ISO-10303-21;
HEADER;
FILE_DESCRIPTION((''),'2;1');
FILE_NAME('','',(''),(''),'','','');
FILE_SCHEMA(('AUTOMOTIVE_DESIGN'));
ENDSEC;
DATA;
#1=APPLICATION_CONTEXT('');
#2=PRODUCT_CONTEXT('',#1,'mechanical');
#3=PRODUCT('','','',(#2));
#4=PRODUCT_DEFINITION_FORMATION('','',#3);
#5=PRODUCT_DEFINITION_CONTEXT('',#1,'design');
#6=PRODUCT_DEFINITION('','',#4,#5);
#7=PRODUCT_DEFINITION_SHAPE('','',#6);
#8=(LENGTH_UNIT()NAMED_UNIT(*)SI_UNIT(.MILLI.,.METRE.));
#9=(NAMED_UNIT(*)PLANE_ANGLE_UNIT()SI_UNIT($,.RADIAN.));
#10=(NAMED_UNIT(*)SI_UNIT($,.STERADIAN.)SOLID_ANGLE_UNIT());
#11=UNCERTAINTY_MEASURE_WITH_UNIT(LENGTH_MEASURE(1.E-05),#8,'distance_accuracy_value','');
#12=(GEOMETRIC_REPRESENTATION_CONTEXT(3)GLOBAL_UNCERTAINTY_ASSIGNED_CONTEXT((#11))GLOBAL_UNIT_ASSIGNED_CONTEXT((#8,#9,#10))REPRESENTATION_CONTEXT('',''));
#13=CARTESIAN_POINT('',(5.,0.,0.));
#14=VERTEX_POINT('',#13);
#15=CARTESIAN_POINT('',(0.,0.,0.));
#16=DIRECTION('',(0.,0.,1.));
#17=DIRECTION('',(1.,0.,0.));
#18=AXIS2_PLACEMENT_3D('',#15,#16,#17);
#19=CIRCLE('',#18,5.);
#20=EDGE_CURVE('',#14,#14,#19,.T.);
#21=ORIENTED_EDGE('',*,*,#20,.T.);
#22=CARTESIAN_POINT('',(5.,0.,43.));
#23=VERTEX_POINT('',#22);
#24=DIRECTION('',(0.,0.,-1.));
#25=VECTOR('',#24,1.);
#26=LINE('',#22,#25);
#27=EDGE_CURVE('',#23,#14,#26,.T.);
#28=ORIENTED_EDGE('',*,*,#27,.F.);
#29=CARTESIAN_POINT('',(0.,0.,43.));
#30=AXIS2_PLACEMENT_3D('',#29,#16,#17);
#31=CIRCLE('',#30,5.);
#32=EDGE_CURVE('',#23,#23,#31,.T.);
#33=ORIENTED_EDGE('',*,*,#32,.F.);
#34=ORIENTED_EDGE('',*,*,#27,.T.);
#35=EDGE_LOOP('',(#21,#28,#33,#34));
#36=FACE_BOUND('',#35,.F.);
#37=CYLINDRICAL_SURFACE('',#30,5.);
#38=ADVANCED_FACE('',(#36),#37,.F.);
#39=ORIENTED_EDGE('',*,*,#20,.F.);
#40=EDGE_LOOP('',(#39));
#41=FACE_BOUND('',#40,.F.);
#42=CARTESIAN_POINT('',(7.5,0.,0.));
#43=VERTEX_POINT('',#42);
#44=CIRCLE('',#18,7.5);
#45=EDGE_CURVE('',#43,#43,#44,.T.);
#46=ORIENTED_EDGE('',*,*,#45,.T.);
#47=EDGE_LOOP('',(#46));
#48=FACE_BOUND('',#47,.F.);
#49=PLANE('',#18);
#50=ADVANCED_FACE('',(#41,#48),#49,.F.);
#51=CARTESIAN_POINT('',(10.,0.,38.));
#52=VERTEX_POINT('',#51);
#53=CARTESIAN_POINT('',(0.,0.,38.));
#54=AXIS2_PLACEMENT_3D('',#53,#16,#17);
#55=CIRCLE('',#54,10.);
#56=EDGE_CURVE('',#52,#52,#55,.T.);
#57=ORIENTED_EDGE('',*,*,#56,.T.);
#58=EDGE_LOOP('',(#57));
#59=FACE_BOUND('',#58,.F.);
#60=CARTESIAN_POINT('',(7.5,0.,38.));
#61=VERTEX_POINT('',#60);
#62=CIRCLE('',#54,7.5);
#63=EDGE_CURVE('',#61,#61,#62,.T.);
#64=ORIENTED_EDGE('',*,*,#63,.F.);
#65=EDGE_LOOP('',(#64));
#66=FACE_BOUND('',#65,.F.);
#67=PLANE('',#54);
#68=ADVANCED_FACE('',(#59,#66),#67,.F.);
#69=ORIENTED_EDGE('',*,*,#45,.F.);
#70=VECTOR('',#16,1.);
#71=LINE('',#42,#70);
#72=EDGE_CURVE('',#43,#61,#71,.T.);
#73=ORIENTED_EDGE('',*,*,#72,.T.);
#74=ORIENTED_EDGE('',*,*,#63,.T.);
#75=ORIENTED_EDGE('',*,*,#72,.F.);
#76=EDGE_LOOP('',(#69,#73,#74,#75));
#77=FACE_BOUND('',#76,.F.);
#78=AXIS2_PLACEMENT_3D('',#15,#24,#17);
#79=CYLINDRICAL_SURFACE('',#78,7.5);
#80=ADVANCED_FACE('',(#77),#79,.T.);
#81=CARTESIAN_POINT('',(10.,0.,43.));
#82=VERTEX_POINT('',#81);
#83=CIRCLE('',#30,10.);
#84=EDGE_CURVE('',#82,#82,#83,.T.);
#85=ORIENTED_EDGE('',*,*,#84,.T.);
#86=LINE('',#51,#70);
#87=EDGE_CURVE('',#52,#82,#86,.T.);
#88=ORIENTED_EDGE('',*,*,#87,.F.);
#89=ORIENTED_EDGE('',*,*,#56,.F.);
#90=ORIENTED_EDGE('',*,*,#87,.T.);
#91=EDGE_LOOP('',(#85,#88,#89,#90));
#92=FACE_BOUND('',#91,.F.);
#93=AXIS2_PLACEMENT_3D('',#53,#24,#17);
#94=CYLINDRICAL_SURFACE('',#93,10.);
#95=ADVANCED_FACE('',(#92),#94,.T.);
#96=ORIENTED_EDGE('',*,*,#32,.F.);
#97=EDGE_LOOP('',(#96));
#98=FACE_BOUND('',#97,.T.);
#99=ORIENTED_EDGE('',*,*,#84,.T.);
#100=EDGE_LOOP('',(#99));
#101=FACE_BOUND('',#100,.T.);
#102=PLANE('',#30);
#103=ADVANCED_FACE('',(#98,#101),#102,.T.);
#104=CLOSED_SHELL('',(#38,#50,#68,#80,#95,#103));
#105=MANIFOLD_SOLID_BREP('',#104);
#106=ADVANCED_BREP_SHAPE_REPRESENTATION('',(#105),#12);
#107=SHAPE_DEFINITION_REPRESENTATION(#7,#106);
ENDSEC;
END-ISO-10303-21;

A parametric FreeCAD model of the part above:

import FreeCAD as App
import Part
import Sketcher
from FreeCAD import Vector

doc = App.newDocument("Part")
body = doc.addObject("PartDesign::Body", "Body")

sketch1 = doc.addObject("Sketcher::SketchObject", "Sketch")
body.addObject(sketch1)
sketch1.AttachmentSupport = (doc.XY_Plane, [""])
sketch1.MapMode = "FlatFace"
sketch1.addGeometry(Part.Circle(Vector(0, 0, 0), Vector(0, 0, 1), 7.5), False)
sketch1.addConstraint([
    Sketcher.Constraint("Coincident", 0, 3, -1, 1),
    Sketcher.Constraint("Diameter", 0, 15.0),
])
pad1 = doc.addObject("PartDesign::Pad", "Pad")
body.addObject(pad1)
pad1.Profile = sketch1
pad1.Length = 38

sketch2 = doc.addObject("Sketcher::SketchObject", "Sketch001")
body.addObject(sketch2)
sketch2.AttachmentSupport = (doc.XY_Plane, [""])
sketch2.MapMode = "FlatFace"
sketch2.AttachmentOffset = App.Placement(Vector(0, 0, 38), App.Rotation())
sketch2.addGeometry(Part.Circle(Vector(0, 0, 0), Vector(0, 0, 1), 10), False)
sketch2.addConstraint([
    Sketcher.Constraint("Coincident", 0, 3, -1, 1),
    Sketcher.Constraint("Diameter", 0, 20.0),
])
pad2 = doc.addObject("PartDesign::Pad", "Pad001")
body.addObject(pad2)
pad2.Profile = sketch2
pad2.Length = 5

sketch3 = doc.addObject("Sketcher::SketchObject", "Sketch002")
body.addObject(sketch3)
sketch3.AttachmentSupport = (doc.XY_Plane, [""])
sketch3.MapMode = "FlatFace"
sketch3.AttachmentOffset = App.Placement(Vector(0, 0, 43), App.Rotation())
sketch3.addGeometry(Part.Circle(Vector(0, 0, 0), Vector(0, 0, 1), 5), False)
sketch3.addConstraint([
    Sketcher.Constraint("Coincident", 0, 3, -1, 1),
    Sketcher.Constraint("Diameter", 0, 10.0),
])
pocket1 = doc.addObject("PartDesign::Pocket", "Pocket")
body.addObject(pocket1)
pocket1.Profile = sketch3
pocket1.Type = "ThroughAll"

doc.recompute()
